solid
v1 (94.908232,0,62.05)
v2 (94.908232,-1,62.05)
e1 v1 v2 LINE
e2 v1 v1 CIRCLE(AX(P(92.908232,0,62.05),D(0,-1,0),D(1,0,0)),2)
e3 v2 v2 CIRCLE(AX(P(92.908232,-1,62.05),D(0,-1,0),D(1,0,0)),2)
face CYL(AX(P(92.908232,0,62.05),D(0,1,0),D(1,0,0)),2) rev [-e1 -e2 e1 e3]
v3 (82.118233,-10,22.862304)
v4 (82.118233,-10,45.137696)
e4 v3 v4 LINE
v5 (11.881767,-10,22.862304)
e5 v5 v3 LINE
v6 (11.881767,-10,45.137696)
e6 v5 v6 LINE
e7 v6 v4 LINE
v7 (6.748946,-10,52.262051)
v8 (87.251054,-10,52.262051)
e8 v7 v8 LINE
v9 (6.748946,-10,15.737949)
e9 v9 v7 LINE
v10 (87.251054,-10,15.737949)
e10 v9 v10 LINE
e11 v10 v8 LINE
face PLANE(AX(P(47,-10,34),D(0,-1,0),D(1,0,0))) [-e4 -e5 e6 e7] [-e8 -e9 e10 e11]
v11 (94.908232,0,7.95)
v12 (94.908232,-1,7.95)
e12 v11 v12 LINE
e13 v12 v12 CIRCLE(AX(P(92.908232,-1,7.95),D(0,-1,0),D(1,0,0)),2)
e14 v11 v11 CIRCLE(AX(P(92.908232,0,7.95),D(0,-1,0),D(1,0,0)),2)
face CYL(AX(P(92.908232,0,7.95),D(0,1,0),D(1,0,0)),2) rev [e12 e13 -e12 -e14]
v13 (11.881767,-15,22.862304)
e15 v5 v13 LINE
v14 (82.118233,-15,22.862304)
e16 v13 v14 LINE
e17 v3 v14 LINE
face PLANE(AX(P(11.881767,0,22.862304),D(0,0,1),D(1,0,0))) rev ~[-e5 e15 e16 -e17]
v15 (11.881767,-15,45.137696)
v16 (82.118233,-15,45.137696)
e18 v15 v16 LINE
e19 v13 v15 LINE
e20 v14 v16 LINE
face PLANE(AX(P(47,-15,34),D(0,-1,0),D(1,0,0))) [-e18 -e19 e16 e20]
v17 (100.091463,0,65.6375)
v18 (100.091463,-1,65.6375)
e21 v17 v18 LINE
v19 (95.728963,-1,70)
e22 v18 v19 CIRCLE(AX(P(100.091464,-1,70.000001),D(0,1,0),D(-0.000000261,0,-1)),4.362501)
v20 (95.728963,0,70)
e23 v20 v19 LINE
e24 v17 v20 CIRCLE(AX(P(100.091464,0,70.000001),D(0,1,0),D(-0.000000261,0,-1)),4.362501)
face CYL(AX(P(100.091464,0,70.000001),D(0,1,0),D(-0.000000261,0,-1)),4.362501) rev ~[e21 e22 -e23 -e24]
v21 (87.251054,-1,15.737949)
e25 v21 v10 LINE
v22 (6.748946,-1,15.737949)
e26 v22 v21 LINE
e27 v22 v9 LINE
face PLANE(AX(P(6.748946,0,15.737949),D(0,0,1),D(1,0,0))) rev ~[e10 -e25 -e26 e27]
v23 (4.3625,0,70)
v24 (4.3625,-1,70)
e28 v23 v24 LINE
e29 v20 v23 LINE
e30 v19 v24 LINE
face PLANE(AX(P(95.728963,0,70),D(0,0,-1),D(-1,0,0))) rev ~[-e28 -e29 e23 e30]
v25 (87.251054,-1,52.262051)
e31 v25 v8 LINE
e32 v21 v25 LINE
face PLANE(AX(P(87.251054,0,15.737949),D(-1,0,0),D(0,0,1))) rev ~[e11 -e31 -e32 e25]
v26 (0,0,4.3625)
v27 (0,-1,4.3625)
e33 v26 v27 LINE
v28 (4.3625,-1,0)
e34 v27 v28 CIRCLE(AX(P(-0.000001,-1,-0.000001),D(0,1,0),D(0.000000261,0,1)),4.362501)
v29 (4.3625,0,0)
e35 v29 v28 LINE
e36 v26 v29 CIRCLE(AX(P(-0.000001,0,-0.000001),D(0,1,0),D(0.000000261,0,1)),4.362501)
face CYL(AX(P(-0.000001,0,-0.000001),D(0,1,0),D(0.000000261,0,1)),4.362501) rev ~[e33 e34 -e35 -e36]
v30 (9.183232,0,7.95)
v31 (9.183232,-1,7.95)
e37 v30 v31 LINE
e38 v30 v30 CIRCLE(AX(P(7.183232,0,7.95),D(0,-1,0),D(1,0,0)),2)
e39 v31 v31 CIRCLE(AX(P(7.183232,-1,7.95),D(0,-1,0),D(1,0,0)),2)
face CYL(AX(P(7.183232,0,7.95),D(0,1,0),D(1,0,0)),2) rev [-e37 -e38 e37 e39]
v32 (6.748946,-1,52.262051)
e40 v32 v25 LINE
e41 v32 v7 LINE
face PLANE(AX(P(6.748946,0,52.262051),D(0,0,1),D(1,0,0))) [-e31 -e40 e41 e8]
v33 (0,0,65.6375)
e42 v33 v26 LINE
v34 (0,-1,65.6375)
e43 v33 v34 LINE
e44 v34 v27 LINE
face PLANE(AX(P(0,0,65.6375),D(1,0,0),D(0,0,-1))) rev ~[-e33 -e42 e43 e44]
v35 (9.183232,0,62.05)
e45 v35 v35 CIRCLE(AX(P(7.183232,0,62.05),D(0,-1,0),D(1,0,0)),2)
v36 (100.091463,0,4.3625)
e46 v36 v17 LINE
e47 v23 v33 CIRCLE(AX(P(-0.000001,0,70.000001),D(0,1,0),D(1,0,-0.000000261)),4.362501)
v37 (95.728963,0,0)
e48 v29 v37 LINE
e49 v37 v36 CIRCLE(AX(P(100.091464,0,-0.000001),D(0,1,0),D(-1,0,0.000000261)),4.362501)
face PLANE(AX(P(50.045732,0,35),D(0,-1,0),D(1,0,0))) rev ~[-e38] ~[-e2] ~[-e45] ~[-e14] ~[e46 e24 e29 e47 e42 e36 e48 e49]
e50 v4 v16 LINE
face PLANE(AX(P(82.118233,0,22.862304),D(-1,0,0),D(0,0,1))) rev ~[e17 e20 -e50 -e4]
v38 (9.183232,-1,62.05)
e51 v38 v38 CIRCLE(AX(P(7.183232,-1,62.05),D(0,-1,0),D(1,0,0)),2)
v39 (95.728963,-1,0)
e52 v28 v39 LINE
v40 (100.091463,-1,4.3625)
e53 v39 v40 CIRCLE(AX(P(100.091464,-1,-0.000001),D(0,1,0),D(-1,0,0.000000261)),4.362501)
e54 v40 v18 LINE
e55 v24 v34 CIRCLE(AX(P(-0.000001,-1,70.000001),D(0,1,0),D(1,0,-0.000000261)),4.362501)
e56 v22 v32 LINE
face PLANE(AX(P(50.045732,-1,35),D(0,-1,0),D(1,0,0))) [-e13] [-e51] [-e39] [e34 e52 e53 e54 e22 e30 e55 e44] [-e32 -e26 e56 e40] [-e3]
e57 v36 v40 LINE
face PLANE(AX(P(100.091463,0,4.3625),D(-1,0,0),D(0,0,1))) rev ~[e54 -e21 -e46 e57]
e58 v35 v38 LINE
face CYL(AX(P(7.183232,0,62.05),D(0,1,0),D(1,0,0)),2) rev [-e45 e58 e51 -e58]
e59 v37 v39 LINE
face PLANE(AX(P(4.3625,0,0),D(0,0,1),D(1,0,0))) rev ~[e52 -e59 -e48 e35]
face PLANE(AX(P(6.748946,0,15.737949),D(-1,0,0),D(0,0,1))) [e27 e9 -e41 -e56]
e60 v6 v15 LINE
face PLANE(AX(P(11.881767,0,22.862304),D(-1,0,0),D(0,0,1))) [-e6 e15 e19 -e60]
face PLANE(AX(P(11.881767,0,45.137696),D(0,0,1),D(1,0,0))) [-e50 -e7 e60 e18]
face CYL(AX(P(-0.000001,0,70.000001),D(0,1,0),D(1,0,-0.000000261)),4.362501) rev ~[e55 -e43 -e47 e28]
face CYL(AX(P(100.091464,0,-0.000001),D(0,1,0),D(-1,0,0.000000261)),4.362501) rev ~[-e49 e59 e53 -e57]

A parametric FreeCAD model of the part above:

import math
import FreeCAD as App
import Part
import Sketcher
from FreeCAD import Vector
Q = App.Units.Quantity

doc = App.newDocument("Part")
body = doc.addObject("PartDesign::Body", "Body")

# Sketch on XZ plane
sketch1 = body.newObject("Sketcher::SketchObject", "Sketch")
sketch1.AttachmentSupport = (doc.getObject("XZ_Plane"), [""])
sketch1.MapMode = "FlatFace"
sketch1.addGeometry([
    Part.ArcOfCircle(Part.Circle(Vector(0, 70, 0), Vector(0, 0, 1), 4.4), math.radians(-90), math.radians(0)),  # 0
    Part.LineSegment(Vector(0, 65.6, 0), Vector(0, 4.4, 0)),  # 1
    Part.ArcOfCircle(Part.Circle(Vector(0, 0, 0), Vector(0, 0, 1), 4.4), math.radians(0), math.radians(90)),  # 2
    Part.LineSegment(Vector(4.4, 0, 0), Vector(95.7, 0, 0)),  # 3
    Part.ArcOfCircle(Part.Circle(Vector(100.1, 0, 0), Vector(0, 0, 1), 4.4), math.radians(90), math.radians(180)),  # 4
    Part.LineSegment(Vector(100.1, 4.4, 0), Vector(100.1, 65.6, 0)),  # 5
    Part.ArcOfCircle(Part.Circle(Vector(100.1, 70, 0), Vector(0, 0, 1), 4.4), math.radians(-180), math.radians(-90)),  # 6
    Part.LineSegment(Vector(95.7, 70, 0), Vector(4.4, 70, 0)),  # 7
    Part.Circle(Vector(7.2, 8, 0), Vector(0, 0, 1), 2),  # 8
    Part.LineSegment(Vector(87.3, 15.7, 0), Vector(6.7, 15.7, 0)),  # 9
    Part.LineSegment(Vector(6.7, 15.7, 0), Vector(6.7, 52.3, 0)),  # 10
    Part.LineSegment(Vector(6.7, 52.3, 0), Vector(87.3, 52.3, 0)),  # 11
    Part.LineSegment(Vector(87.3, 52.3, 0), Vector(87.3, 15.7, 0)),  # 12
    Part.Circle(Vector(92.9, 8, 0), Vector(0, 0, 1), 2),  # 13
    Part.Circle(Vector(7.2, 62, 0), Vector(0, 0, 1), 2),  # 14
    Part.Circle(Vector(92.9, 62, 0), Vector(0, 0, 1), 2),  # 15
], False)
sketch1.addConstraint([
    Sketcher.Constraint("Coincident", 0, 1, 1, 1),
    Sketcher.Constraint("Coincident", 1, 2, 2, 2),
    Sketcher.Constraint("Coincident", 2, 1, 3, 1),
    Sketcher.Constraint("Coincident", 3, 2, 4, 2),
    Sketcher.Constraint("Coincident", 4, 1, 5, 1),
    Sketcher.Constraint("Coincident", 5, 2, 6, 2),
    Sketcher.Constraint("Coincident", 6, 1, 7, 1),
    Sketcher.Constraint("Coincident", 7, 2, 0, 2),
    Sketcher.Constraint("Coincident", 9, 2, 10, 1),
    Sketcher.Constraint("Coincident", 10, 2, 11, 1),
    Sketcher.Constraint("Coincident", 11, 2, 12, 1),
    Sketcher.Constraint("Coincident", 12, 2, 9, 1),
    Sketcher.Constraint("Vertical", 1),
    Sketcher.Constraint("Horizontal", 3),
    Sketcher.Constraint("Vertical", 5),
    Sketcher.Constraint("Horizontal", 7),
    Sketcher.Constraint("Horizontal", 9),
    Sketcher.Constraint("Vertical", 10),
    Sketcher.Constraint("Horizontal", 11),
    Sketcher.Constraint("Vertical", 12),
    Sketcher.Constraint("Coincident", 2, 3, -1, 1),
    Sketcher.Constraint("Equal", 0, 2),
    Sketcher.Constraint("Equal", 2, 4),
    Sketcher.Constraint("Equal", 4, 6),
    Sketcher.Constraint("Equal", 8, 13),
    Sketcher.Constraint("Equal", 13, 14),
    Sketcher.Constraint("Equal", 14, 15),
    Sketcher.Constraint("PointOnObject", 0, 3, -2),
    Sketcher.Constraint("PointOnObject", 4, 3, -1),
    Sketcher.Constraint("PointOnObject", 0, 1, -2),
    Sketcher.Constraint("PointOnObject", 2, 1, -1),
    Sketcher.Constraint("Horizontal", 0, 3, 6, 3),
    Sketcher.Constraint("Horizontal", 8, 3, 13, 3),
    Sketcher.Constraint("Horizontal", 14, 3, 15, 3),
    Sketcher.Constraint("Horizontal", 0, 3, 6, 1),
    Sketcher.Constraint("Vertical", 4, 3, 6, 3),
    Sketcher.Constraint("Vertical", 8, 3, 14, 3),
    Sketcher.Constraint("Vertical", 13, 3, 15, 3),
    Sketcher.Constraint("Vertical", 6, 3, 4, 1),
    Sketcher.Constraint("Diameter", 8, Q("4 mm")),
    Sketcher.Constraint("DistanceY", -1, 1, 0, 3, Q("70.000001 mm")),
    Sketcher.Constraint("Radius", 0, Q("4.362501 mm")),
    Sketcher.Constraint("DistanceY", 8, 3, 14, 3, Q("54.1 mm")),
    Sketcher.Constraint("DistanceY", -1, 1, 8, 3, Q("7.95 mm")),
    Sketcher.Constraint("DistanceX", 8, 3, 13, 3, Q("85.725 mm")),
    Sketcher.Constraint("DistanceX", 3, 1, 3, 2, Q("91.366463 mm")),
    Sketcher.Constraint("DistanceX", 9, 2, 9, 1, Q("80.502108 mm")),
    Sketcher.Constraint("DistanceY", 10, 1, 10, 2, Q("36.524102 mm")),
    Sketcher.Constraint("DistanceX", -1, 1, 13, 3, Q("92.908232 mm")),
    Sketcher.Constraint("DistanceY", -1, 1, 9, 2, Q("15.737949 mm")),
    Sketcher.Constraint("DistanceX", 11, 2, 15, 3, Q("5.657178 mm")),
])
pad1 = body.newObject("PartDesign::Pad", "Pad")
pad1.Profile = sketch1
pad1.Length = 1

# Sketch on XZ plane
sketch2 = body.newObject("Sketcher::SketchObject", "Sketch001")
sketch2.AttachmentSupport = (doc.getObject("XZ_Plane"), [""])
sketch2.MapMode = "FlatFace"
sketch2.addGeometry([
    Part.LineSegment(Vector(7, 52, 0), Vector(7, 16, 0)),  # 0
    Part.LineSegment(Vector(7, 16, 0), Vector(87, 16, 0)),  # 1
    Part.LineSegment(Vector(87, 16, 0), Vector(87, 52, 0)),  # 2
    Part.LineSegment(Vector(87, 52, 0), Vector(7, 52, 0)),  # 3
    Part.LineSegment(Vector(82, 23, 0), Vector(12, 23, 0)),  # 4
    Part.LineSegment(Vector(12, 23, 0), Vector(12, 45, 0)),  # 5
    Part.LineSegment(Vector(12, 45, 0), Vector(82, 45, 0)),  # 6
    Part.LineSegment(Vector(82, 45, 0), Vector(82, 23, 0)),  # 7
], False)
sketch2.addConstraint([
    Sketcher.Constraint("Coincident", 0, 2, 1, 1),
    Sketcher.Constraint("Coincident", 1, 2, 2, 1),
    Sketcher.Constraint("Coincident", 2, 2, 3, 1),
    Sketcher.Constraint("Coincident", 3, 2, 0, 1),
    Sketcher.Constraint("Coincident", 4, 2, 5, 1),
    Sketcher.Constraint("Coincident", 5, 2, 6, 1),
    Sketcher.Constraint("Coincident", 6, 2, 7, 1),
    Sketcher.Constraint("Coincident", 7, 2, 4, 1),
    Sketcher.Constraint("Vertical", 0),
    Sketcher.Constraint("Horizontal", 1),
    Sketcher.Constraint("Vertical", 2),
    Sketcher.Constraint("Horizontal", 3),
    Sketcher.Constraint("Horizontal", 4),
    Sketcher.Constraint("Vertical", 5),
    Sketcher.Constraint("Horizontal", 6),
    Sketcher.Constraint("Vertical", 7),
    Sketcher.Constraint("DistanceY", 5, 1, 5, 2, Q("22.275392 mm")),
    Sketcher.Constraint("DistanceX", 1, 1, 1, 2, Q("80.502108 mm")),
    Sketcher.Constraint("DistanceX", 4, 2, 4, 1, Q("70.236466 mm")),
    Sketcher.Constraint("DistanceY", 0, 2, 0, 1, Q("36.524102 mm")),
    Sketcher.Constraint("DistanceY", -1, 1, 0, 2, Q("15.737949 mm")),
    Sketcher.Constraint("DistanceX", 0, 2, 4, 2, Q("5.132821 mm")),
    Sketcher.Constraint("DistanceX", -1, 1, 0, 2, Q("6.748946 mm")),
    Sketcher.Constraint("DistanceY", -1, 1, 4, 2, Q("22.862304 mm")),
])
pad2 = body.newObject("PartDesign::Pad", "Pad001")
pad2.Profile = sketch2
pad2.Length = 10

# Sketch on XZ plane
sketch3 = body.newObject("Sketcher::SketchObject", "Sketch002")
sketch3.AttachmentSupport = (doc.getObject("XZ_Plane"), [""])
sketch3.MapMode = "FlatFace"
sketch3.addGeometry([
    Part.LineSegment(Vector(12, 45, 0), Vector(12, 23, 0)),
    Part.LineSegment(Vector(12, 23, 0), Vector(82, 23, 0)),
    Part.LineSegment(Vector(82, 23, 0), Vector(82, 45, 0)),
    Part.LineSegment(Vector(82, 45, 0), Vector(12, 45, 0)),
], False)
sketch3.addConstraint([
    Sketcher.Constraint("Coincident", 0, 2, 1, 1),
    Sketcher.Constraint("Coincident", 1, 2, 2, 1),
    Sketcher.Constraint("Coincident", 2, 2, 3, 1),
    Sketcher.Constraint("Coincident", 3, 2, 0, 1),
    Sketcher.Constraint("Vertical", 0),
    Sketcher.Constraint("Horizontal", 1),
    Sketcher.Constraint("Vertical", 2),
    Sketcher.Constraint("Horizontal", 3),
    Sketcher.Constraint("DistanceY", 0, 2, 0, 1, Q("22.275392 mm")),
    Sketcher.Constraint("DistanceX", 1, 1, 1, 2, Q("70.236466 mm")),
    Sketcher.Constraint("DistanceX", -1, 1, 0, 2, Q("11.881767 mm")),
    Sketcher.Constraint("DistanceY", -1, 1, 0, 2, Q("22.862304 mm")),
])
pad3 = body.newObject("PartDesign::Pad", "Pad002")
pad3.Profile = sketch3
pad3.Length = 15

doc.recompute()
